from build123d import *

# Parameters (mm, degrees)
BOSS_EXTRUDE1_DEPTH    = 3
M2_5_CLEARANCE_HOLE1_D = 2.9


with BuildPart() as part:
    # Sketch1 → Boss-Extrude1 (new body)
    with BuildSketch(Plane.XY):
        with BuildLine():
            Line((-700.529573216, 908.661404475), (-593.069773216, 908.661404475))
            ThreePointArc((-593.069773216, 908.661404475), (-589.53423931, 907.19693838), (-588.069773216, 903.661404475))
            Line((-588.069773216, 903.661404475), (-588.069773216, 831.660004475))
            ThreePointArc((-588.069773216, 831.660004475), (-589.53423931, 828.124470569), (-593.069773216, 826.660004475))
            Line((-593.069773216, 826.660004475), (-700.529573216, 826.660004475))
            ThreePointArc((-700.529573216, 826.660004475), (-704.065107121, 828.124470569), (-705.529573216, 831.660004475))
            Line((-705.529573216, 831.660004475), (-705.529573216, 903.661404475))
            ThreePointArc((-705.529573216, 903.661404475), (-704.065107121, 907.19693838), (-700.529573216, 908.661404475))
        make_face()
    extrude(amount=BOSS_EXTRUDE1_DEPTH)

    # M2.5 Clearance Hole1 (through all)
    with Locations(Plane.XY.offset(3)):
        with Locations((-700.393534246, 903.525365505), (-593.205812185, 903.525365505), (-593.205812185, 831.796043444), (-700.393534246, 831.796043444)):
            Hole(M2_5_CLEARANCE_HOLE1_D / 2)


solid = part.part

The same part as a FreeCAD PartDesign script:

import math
import FreeCAD as App
import Part
import Sketcher
from FreeCAD import Vector

doc = App.newDocument("Part")
params = doc.addObject("Spreadsheet::Sheet", "Params")
for row, (alias, value) in enumerate([
    ("sketch1_radius", "5 mm"),
    ("pad1_length", "3 mm"),
    ("sketch2_diameter", "2.9 mm"),
    ("hole_diameter", "2.9 mm"),
], start=1):
    params.set(f"A{row}", alias)
    params.set(f"B{row}", "=" + value)
    params.setAlias(f"B{row}", alias)

body = doc.addObject("PartDesign::Body", "Body")

# Sketch on XY plane
sketch1 = body.newObject("Sketcher::SketchObject", "Sketch")
sketch1.AttachmentSupport = (doc.getObject("XY_Plane"), [""])
sketch1.MapMode = "FlatFace"
sketch1.addGeometry([
    Part.LineSegment(Vector(-593, 909, 0), Vector(-701, 909, 0)),  # 0
    Part.ArcOfCircle(Part.Circle(Vector(-701, 904, 0), Vector(0, 0, 1), 5), math.radians(90), math.radians(180)),  # 1
    Part.LineSegment(Vector(-706, 904, 0), Vector(-706, 832, 0)),  # 2
    Part.ArcOfCircle(Part.Circle(Vector(-701, 832, 0), Vector(0, 0, 1), 5), math.radians(-180), math.radians(-90)),  # 3
    Part.LineSegment(Vector(-701, 827, 0), Vector(-593, 827, 0)),  # 4
    Part.ArcOfCircle(Part.Circle(Vector(-593, 832, 0), Vector(0, 0, 1), 5), math.radians(-90), math.radians(0)),  # 5
    Part.LineSegment(Vector(-588, 832, 0), Vector(-588, 904, 0)),  # 6
    Part.ArcOfCircle(Part.Circle(Vector(-593, 904, 0), Vector(0, 0, 1), 5), math.radians(0), math.radians(90)),  # 7
], False)
sketch1.addConstraint([
    Sketcher.Constraint("Tangent", 0, 2, 1, 1),
    Sketcher.Constraint("Tangent", 1, 2, 2, 1),
    Sketcher.Constraint("Tangent", 2, 2, 3, 1),
    Sketcher.Constraint("Tangent", 3, 2, 4, 1),
    Sketcher.Constraint("Tangent", 4, 2, 5, 1),
    Sketcher.Constraint("Tangent", 5, 2, 6, 1),
    Sketcher.Constraint("Tangent", 6, 2, 7, 1),
    Sketcher.Constraint("Tangent", 7, 2, 0, 1),
    Sketcher.Constraint("Horizontal", 0),
    Sketcher.Constraint("Vertical", 2),
    Sketcher.Constraint("Horizontal", 4),
    Sketcher.Constraint("Vertical", 6),
    Sketcher.Constraint("Equal", 1, 3),
    Sketcher.Constraint("Equal", 3, 5),
    Sketcher.Constraint("Equal", 5, 7),
    Sketcher.Constraint("Radius", 1, 5.0),
    Sketcher.Constraint("DistanceX", 0, 2, 0, 1, 107.4598),
    Sketcher.Constraint("DistanceY", 2, 2, 2, 1, 72.0014),
    Sketcher.Constraint("DistanceX", 1, 3, -1, 1, 700.529573),
    Sketcher.Constraint("DistanceY", -1, 1, 1, 3, 903.661404),
])
sketch1.setExpression("Constraints[15]", "Params.sketch1_radius")
pad1 = body.newObject("PartDesign::Pad", "Pad")
pad1.Profile = sketch1
pad1.setExpression("Length", "Params.pad1_length")

# Sketch on XY plane
sketch2 = body.newObject("Sketcher::SketchObject", "Sketch001")
sketch2.AttachmentSupport = (doc.getObject("XY_Plane"), [""])
sketch2.MapMode = "FlatFace"
sketch2.AttachmentOffset = App.Placement(Vector(0, 0, 3), App.Rotation())
sketch2.addGeometry([
    Part.Circle(Vector(-700.4, 903.5, 0), Vector(0, 0, 1), 1.4),
    Part.Circle(Vector(-593.2, 903.5, 0), Vector(0, 0, 1), 1.4),
    Part.Circle(Vector(-593.2, 831.8, 0), Vector(0, 0, 1), 1.4),
    Part.Circle(Vector(-700.4, 831.8, 0), Vector(0, 0, 1), 1.4),
], False)
sketch2.addConstraint([
    Sketcher.Constraint("Equal", 0, 1),
    Sketcher.Constraint("Equal", 1, 2),
    Sketcher.Constraint("Equal", 2, 3),
    Sketcher.Constraint("Horizontal", 0, 3, 1, 3),
    Sketcher.Constraint("Horizontal", 2, 3, 3, 3),
    Sketcher.Constraint("Vertical", 1, 3, 2, 3),
    Sketcher.Constraint("Vertical", 0, 3, 3, 3),
    Sketcher.Constraint("Diameter", 0, 2.9),
    Sketcher.Constraint("DistanceX", 0, 3, -1, 1, 700.393534),
    Sketcher.Constraint("DistanceY", -1, 1, 0, 3, 903.525366),
    Sketcher.Constraint("DistanceX", 1, 3, -1, 1, 593.205812),
    Sketcher.Constraint("DistanceY", -1, 1, 2, 3, 831.796043),
])
sketch2.setExpression("Constraints[7]", "Params.sketch2_diameter")
doc.recompute()
hole = body.newObject("PartDesign::Hole", "Hole")
hole.Profile = sketch2
hole.ThreadType = "None"
hole.setExpression("Diameter", "Params.hole_diameter")
hole.DepthType = "ThroughAll"

doc.recompute()
